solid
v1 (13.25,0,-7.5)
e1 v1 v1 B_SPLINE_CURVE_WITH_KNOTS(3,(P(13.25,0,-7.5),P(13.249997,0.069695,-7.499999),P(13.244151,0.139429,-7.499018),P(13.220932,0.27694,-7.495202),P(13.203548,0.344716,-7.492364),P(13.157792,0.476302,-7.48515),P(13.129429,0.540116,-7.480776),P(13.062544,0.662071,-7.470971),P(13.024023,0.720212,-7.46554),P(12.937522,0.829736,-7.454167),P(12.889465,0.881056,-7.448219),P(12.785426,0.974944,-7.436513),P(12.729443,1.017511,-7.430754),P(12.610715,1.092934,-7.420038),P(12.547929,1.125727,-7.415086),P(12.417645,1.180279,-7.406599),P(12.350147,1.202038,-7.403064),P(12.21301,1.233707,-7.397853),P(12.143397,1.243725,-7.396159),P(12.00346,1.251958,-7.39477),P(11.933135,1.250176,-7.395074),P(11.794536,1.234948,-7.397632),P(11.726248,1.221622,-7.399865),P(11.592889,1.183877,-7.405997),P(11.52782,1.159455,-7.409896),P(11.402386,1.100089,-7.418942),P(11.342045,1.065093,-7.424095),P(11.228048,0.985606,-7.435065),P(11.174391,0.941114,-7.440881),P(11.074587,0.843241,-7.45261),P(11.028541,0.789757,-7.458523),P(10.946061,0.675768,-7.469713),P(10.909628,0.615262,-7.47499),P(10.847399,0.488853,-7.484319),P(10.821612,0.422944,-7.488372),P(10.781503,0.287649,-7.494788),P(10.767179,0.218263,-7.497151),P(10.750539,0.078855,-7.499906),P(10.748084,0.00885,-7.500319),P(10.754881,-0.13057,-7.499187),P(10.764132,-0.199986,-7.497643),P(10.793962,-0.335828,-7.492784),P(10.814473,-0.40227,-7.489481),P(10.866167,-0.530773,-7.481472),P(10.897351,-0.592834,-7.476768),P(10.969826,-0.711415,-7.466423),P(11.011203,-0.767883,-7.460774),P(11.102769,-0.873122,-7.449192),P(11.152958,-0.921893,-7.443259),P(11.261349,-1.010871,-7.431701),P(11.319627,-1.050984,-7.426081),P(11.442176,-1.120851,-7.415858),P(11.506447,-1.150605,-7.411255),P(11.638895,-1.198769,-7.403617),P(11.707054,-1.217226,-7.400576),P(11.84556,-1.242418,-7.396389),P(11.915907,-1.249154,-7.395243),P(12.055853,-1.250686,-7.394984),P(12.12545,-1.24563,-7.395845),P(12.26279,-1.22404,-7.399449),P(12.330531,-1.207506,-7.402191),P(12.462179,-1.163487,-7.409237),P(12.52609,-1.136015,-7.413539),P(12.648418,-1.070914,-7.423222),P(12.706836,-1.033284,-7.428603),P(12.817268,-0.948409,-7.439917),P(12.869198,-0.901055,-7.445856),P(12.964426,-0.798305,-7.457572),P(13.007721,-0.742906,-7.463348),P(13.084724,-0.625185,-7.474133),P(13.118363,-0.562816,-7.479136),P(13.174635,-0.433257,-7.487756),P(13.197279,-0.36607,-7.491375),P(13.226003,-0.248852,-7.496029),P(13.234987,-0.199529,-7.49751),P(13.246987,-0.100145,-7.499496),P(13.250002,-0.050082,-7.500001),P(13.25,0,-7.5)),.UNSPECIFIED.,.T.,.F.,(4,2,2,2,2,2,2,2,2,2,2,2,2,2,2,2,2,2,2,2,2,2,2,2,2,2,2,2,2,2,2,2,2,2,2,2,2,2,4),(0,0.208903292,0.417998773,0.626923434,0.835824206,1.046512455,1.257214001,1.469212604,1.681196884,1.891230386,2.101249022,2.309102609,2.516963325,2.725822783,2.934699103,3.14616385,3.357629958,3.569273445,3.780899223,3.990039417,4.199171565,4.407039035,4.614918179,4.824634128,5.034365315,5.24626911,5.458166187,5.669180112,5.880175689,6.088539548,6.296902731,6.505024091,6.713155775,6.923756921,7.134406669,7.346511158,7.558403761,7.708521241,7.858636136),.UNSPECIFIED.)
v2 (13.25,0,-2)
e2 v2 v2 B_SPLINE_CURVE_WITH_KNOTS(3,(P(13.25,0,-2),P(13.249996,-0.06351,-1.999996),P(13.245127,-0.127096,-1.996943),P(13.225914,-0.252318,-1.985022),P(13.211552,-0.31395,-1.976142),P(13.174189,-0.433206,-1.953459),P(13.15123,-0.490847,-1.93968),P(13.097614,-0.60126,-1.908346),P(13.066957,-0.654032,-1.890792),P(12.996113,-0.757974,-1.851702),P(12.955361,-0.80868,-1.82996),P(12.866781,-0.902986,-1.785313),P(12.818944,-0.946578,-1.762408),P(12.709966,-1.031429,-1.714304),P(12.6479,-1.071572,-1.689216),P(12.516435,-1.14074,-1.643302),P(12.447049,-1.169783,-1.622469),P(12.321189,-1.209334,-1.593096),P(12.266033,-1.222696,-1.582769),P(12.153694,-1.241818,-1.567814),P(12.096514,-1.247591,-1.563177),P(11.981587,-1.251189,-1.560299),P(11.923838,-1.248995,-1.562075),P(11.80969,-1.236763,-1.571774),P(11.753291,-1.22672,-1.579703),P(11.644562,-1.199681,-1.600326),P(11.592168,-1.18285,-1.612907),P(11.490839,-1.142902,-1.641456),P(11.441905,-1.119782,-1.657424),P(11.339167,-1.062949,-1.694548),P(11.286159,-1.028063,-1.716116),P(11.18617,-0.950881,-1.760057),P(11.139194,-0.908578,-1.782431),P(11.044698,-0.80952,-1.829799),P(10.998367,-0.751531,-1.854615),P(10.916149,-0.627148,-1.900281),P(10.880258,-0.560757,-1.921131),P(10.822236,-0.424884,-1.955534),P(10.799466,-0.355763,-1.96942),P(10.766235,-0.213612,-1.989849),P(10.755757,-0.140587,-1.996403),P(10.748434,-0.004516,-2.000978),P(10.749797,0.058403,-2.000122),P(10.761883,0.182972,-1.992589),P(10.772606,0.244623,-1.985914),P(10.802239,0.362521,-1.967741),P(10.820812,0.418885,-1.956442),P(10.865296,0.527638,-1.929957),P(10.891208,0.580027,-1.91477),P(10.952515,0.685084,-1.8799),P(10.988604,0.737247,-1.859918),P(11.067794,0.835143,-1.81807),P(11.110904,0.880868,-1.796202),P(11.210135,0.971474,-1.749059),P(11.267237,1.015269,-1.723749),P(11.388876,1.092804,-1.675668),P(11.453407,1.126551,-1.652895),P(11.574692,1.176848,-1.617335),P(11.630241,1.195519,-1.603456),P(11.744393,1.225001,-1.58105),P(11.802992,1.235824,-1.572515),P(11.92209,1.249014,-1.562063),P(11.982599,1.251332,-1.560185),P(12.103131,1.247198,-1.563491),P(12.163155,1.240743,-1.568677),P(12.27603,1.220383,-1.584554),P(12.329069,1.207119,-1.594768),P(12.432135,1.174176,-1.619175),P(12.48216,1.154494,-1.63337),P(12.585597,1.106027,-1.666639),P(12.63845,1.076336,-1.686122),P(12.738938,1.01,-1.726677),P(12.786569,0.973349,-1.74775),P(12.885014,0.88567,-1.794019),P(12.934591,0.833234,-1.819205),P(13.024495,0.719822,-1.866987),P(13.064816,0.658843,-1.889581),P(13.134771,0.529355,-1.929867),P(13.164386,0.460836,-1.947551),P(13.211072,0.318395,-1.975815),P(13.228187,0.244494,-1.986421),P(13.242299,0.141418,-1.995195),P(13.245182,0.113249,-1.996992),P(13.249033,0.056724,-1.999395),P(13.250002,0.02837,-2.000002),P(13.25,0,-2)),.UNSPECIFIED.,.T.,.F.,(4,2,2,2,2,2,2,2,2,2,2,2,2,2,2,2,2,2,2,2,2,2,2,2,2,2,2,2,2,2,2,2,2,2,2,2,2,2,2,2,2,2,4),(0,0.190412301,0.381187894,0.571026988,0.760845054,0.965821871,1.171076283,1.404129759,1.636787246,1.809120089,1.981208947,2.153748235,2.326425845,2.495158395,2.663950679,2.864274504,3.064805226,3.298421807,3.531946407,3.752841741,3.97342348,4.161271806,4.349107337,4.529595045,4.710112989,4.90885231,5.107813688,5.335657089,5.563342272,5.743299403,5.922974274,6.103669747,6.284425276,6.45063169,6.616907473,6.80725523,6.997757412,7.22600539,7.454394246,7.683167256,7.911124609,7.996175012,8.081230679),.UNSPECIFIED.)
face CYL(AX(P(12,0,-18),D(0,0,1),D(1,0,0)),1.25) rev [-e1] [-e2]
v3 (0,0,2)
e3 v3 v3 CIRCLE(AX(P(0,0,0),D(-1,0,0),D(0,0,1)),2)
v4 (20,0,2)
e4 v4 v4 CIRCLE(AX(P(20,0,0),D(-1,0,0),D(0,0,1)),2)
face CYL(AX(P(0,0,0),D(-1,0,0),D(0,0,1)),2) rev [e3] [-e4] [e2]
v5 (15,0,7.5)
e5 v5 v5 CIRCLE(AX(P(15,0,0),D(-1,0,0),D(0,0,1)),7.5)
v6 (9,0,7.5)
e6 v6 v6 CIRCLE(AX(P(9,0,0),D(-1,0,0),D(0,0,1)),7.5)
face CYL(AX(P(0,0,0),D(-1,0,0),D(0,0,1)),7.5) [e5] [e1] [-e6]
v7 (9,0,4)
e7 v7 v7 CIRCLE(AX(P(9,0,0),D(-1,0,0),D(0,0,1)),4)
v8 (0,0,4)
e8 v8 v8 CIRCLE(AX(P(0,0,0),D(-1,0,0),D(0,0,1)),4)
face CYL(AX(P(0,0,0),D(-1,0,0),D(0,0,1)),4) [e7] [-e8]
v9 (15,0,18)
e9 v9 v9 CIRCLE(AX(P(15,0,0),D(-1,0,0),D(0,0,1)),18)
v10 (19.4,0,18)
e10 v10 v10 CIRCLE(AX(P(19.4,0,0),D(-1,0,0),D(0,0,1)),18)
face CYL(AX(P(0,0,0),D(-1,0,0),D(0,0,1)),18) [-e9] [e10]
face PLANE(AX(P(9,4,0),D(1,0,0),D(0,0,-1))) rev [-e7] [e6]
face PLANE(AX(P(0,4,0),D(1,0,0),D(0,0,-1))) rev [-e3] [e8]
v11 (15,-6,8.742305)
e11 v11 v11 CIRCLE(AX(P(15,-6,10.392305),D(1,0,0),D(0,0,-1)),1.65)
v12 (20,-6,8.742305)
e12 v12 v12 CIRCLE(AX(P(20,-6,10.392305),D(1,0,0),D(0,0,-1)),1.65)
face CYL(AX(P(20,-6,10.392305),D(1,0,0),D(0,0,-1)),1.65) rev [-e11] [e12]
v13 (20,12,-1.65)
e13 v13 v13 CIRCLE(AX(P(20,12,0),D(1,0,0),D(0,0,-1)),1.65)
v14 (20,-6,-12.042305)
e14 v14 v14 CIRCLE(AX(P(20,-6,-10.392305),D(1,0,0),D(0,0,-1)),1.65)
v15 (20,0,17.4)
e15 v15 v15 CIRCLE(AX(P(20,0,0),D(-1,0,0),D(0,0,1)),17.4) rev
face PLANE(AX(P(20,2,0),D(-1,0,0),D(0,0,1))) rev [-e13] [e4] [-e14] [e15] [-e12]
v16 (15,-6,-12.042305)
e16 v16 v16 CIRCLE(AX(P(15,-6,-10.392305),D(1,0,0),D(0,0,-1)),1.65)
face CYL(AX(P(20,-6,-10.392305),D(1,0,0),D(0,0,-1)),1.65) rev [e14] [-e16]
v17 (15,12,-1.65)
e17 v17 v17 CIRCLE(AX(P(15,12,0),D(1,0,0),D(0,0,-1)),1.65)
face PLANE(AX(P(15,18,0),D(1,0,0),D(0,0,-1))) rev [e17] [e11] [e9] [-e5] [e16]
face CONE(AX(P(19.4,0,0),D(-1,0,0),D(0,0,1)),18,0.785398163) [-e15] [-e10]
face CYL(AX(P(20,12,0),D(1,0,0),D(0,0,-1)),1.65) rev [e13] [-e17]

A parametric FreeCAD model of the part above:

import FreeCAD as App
import Part
import Sketcher
from FreeCAD import Vector


def edges_at(feature, points):
    """Names of the edges that pass closest to the given points."""
    edges = feature.Shape.Edges
    near = lambda p: min(range(len(edges)), key=lambda i: edges[i].distToShape(Part.Vertex(*p))[0])
    return sorted({f"Edge{near(p) + 1}" for p in points})

doc = App.newDocument("Part")
body = doc.addObject("PartDesign::Body", "Body")

# Sketch on XY plane
sketch1 = body.newObject("Sketcher::SketchObject", "Sketch")
sketch1.AttachmentSupport = (doc.getObject("XY_Plane"), [""])
sketch1.MapMode = "FlatFace"
sketch1.addGeometry(Part.LineSegment(Vector(0, 2, 0), Vector(20, 2, 0)), False)
sketch1.addGeometry(Part.LineSegment(Vector(20, 2, 0), Vector(20, 18, 0)), False)
sketch1.addGeometry(Part.LineSegment(Vector(20, 18, 0), Vector(15, 18, 0)), False)
sketch1.addGeometry(Part.LineSegment(Vector(15, 18, 0), Vector(15, 7.5, 0)), False)
sketch1.addGeometry(Part.LineSegment(Vector(15, 7.5, 0), Vector(9, 7.5, 0)), False)
sketch1.addGeometry(Part.LineSegment(Vector(9, 7.5, 0), Vector(9, 4, 0)), False)
sketch1.addGeometry(Part.LineSegment(Vector(9, 4, 0), Vector(0, 4, 0)), False)
sketch1.addGeometry(Part.LineSegment(Vector(0, 4, 0), Vector(0, 2, 0)), False)
sketch1.addConstraint(Sketcher.Constraint("Coincident", 0, 2, 1, 1))
sketch1.addConstraint(Sketcher.Constraint("Coincident", 1, 2, 2, 1))
sketch1.addConstraint(Sketcher.Constraint("Coincident", 2, 2, 3, 1))
sketch1.addConstraint(Sketcher.Constraint("Coincident", 3, 2, 4, 1))
sketch1.addConstraint(Sketcher.Constraint("Coincident", 4, 2, 5, 1))
sketch1.addConstraint(Sketcher.Constraint("Coincident", 5, 2, 6, 1))
sketch1.addConstraint(Sketcher.Constraint("Coincident", 6, 2, 7, 1))
sketch1.addConstraint(Sketcher.Constraint("Coincident", 7, 2, 0, 1))
sketch1.addConstraint(Sketcher.Constraint("Horizontal", 0))
sketch1.addConstraint(Sketcher.Constraint("Vertical", 1))
sketch1.addConstraint(Sketcher.Constraint("Horizontal", 2))
sketch1.addConstraint(Sketcher.Constraint("Vertical", 3))
sketch1.addConstraint(Sketcher.Constraint("Horizontal", 4))
sketch1.addConstraint(Sketcher.Constraint("Vertical", 5))
sketch1.addConstraint(Sketcher.Constraint("Horizontal", 6))
sketch1.addConstraint(Sketcher.Constraint("Vertical", 7))
sketch1.addConstraint(Sketcher.Constraint("PointOnObject", 6, 2, -2))
sketch1.addConstraint(Sketcher.Constraint("DistanceX", 0, 1, 0, 2, 20.0))
sketch1.addConstraint(Sketcher.Constraint("DistanceX", 2, 2, 2, 1, 5.0))
sketch1.addConstraint(Sketcher.Constraint("DistanceX", 4, 2, 4, 1, 6.0))
sketch1.addConstraint(Sketcher.Constraint("DistanceY", 1, 1, 1, 2, 16.0))
sketch1.addConstraint(Sketcher.Constraint("DistanceY", 7, 2, 7, 1, 2.0))
sketch1.addConstraint(Sketcher.Constraint("DistanceY", 3, 2, 3, 1, 10.5))
sketch1.addConstraint(Sketcher.Constraint("DistanceY", -1, 1, 0, 2, 2.0))
revolution = body.newObject("PartDesign::Revolution", "Revolution")
revolution.Profile = sketch1
revolution.ReferenceAxis = (sketch1, ["H_Axis"])
revolution.Angle = 360

# Sketch on XY plane
sketch2 = body.newObject("Sketcher::SketchObject", "Sketch001")
sketch2.AttachmentSupport = (doc.getObject("XY_Plane"), [""])
sketch2.MapMode = "FlatFace"
sketch2.addGeometry(Part.Circle(Vector(12, 0, 0), Vector(0, 0, 1), 1.2), False)
sketch2.addConstraint(Sketcher.Constraint("PointOnObject", 0, 3, -1))
sketch2.addConstraint(Sketcher.Constraint("Diameter", 0, 2.5))
sketch2.addConstraint(Sketcher.Constraint("DistanceX", -1, 1, 0, 3, 12.0))
pocket1 = body.newObject("PartDesign::Pocket", "Pocket")
pocket1.Profile = sketch2
pocket1.Type = "ThroughAll"

# Sketch on YZ plane
sketch3 = body.newObject("Sketcher::SketchObject", "Sketch002")
sketch3.AttachmentSupport = (doc.getObject("YZ_Plane"), [""])
sketch3.MapMode = "FlatFace"
sketch3.AttachmentOffset = App.Placement(Vector(0, 0, 20), App.Rotation())
sketch3.addGeometry(Part.Circle(Vector(12, 0, 0), Vector(0, 0, 1), 1.6), False)
sketch3.addConstraint(Sketcher.Constraint("PointOnObject", 0, 3, -1))
sketch3.addConstraint(Sketcher.Constraint("Diameter", 0, 3.3))
sketch3.addConstraint(Sketcher.Constraint("DistanceX", -1, 1, 0, 3, 12.0))
doc.recompute()
hole = body.newObject("PartDesign::Hole", "Hole")
hole.Profile = sketch3
hole.ThreadType = "None"
hole.Diameter = 3.3
hole.DepthType = "ThroughAll"
doc.recompute()

polarpattern = body.newObject("PartDesign::PolarPattern", "PolarPattern")
polarpattern.Originals = [hole]
polarpattern.Axis = (doc.getObject("X_Axis"), [""])
polarpattern.Angle = 360
polarpattern.Occurrences = 3
body.Tip = polarpattern
doc.recompute()

chamfer = body.newObject("PartDesign::Chamfer", "Chamfer")
chamfer.Base = (polarpattern, edges_at(polarpattern, [(20, 0, -18)]))
chamfer.Size = 0.6

doc.recompute()
